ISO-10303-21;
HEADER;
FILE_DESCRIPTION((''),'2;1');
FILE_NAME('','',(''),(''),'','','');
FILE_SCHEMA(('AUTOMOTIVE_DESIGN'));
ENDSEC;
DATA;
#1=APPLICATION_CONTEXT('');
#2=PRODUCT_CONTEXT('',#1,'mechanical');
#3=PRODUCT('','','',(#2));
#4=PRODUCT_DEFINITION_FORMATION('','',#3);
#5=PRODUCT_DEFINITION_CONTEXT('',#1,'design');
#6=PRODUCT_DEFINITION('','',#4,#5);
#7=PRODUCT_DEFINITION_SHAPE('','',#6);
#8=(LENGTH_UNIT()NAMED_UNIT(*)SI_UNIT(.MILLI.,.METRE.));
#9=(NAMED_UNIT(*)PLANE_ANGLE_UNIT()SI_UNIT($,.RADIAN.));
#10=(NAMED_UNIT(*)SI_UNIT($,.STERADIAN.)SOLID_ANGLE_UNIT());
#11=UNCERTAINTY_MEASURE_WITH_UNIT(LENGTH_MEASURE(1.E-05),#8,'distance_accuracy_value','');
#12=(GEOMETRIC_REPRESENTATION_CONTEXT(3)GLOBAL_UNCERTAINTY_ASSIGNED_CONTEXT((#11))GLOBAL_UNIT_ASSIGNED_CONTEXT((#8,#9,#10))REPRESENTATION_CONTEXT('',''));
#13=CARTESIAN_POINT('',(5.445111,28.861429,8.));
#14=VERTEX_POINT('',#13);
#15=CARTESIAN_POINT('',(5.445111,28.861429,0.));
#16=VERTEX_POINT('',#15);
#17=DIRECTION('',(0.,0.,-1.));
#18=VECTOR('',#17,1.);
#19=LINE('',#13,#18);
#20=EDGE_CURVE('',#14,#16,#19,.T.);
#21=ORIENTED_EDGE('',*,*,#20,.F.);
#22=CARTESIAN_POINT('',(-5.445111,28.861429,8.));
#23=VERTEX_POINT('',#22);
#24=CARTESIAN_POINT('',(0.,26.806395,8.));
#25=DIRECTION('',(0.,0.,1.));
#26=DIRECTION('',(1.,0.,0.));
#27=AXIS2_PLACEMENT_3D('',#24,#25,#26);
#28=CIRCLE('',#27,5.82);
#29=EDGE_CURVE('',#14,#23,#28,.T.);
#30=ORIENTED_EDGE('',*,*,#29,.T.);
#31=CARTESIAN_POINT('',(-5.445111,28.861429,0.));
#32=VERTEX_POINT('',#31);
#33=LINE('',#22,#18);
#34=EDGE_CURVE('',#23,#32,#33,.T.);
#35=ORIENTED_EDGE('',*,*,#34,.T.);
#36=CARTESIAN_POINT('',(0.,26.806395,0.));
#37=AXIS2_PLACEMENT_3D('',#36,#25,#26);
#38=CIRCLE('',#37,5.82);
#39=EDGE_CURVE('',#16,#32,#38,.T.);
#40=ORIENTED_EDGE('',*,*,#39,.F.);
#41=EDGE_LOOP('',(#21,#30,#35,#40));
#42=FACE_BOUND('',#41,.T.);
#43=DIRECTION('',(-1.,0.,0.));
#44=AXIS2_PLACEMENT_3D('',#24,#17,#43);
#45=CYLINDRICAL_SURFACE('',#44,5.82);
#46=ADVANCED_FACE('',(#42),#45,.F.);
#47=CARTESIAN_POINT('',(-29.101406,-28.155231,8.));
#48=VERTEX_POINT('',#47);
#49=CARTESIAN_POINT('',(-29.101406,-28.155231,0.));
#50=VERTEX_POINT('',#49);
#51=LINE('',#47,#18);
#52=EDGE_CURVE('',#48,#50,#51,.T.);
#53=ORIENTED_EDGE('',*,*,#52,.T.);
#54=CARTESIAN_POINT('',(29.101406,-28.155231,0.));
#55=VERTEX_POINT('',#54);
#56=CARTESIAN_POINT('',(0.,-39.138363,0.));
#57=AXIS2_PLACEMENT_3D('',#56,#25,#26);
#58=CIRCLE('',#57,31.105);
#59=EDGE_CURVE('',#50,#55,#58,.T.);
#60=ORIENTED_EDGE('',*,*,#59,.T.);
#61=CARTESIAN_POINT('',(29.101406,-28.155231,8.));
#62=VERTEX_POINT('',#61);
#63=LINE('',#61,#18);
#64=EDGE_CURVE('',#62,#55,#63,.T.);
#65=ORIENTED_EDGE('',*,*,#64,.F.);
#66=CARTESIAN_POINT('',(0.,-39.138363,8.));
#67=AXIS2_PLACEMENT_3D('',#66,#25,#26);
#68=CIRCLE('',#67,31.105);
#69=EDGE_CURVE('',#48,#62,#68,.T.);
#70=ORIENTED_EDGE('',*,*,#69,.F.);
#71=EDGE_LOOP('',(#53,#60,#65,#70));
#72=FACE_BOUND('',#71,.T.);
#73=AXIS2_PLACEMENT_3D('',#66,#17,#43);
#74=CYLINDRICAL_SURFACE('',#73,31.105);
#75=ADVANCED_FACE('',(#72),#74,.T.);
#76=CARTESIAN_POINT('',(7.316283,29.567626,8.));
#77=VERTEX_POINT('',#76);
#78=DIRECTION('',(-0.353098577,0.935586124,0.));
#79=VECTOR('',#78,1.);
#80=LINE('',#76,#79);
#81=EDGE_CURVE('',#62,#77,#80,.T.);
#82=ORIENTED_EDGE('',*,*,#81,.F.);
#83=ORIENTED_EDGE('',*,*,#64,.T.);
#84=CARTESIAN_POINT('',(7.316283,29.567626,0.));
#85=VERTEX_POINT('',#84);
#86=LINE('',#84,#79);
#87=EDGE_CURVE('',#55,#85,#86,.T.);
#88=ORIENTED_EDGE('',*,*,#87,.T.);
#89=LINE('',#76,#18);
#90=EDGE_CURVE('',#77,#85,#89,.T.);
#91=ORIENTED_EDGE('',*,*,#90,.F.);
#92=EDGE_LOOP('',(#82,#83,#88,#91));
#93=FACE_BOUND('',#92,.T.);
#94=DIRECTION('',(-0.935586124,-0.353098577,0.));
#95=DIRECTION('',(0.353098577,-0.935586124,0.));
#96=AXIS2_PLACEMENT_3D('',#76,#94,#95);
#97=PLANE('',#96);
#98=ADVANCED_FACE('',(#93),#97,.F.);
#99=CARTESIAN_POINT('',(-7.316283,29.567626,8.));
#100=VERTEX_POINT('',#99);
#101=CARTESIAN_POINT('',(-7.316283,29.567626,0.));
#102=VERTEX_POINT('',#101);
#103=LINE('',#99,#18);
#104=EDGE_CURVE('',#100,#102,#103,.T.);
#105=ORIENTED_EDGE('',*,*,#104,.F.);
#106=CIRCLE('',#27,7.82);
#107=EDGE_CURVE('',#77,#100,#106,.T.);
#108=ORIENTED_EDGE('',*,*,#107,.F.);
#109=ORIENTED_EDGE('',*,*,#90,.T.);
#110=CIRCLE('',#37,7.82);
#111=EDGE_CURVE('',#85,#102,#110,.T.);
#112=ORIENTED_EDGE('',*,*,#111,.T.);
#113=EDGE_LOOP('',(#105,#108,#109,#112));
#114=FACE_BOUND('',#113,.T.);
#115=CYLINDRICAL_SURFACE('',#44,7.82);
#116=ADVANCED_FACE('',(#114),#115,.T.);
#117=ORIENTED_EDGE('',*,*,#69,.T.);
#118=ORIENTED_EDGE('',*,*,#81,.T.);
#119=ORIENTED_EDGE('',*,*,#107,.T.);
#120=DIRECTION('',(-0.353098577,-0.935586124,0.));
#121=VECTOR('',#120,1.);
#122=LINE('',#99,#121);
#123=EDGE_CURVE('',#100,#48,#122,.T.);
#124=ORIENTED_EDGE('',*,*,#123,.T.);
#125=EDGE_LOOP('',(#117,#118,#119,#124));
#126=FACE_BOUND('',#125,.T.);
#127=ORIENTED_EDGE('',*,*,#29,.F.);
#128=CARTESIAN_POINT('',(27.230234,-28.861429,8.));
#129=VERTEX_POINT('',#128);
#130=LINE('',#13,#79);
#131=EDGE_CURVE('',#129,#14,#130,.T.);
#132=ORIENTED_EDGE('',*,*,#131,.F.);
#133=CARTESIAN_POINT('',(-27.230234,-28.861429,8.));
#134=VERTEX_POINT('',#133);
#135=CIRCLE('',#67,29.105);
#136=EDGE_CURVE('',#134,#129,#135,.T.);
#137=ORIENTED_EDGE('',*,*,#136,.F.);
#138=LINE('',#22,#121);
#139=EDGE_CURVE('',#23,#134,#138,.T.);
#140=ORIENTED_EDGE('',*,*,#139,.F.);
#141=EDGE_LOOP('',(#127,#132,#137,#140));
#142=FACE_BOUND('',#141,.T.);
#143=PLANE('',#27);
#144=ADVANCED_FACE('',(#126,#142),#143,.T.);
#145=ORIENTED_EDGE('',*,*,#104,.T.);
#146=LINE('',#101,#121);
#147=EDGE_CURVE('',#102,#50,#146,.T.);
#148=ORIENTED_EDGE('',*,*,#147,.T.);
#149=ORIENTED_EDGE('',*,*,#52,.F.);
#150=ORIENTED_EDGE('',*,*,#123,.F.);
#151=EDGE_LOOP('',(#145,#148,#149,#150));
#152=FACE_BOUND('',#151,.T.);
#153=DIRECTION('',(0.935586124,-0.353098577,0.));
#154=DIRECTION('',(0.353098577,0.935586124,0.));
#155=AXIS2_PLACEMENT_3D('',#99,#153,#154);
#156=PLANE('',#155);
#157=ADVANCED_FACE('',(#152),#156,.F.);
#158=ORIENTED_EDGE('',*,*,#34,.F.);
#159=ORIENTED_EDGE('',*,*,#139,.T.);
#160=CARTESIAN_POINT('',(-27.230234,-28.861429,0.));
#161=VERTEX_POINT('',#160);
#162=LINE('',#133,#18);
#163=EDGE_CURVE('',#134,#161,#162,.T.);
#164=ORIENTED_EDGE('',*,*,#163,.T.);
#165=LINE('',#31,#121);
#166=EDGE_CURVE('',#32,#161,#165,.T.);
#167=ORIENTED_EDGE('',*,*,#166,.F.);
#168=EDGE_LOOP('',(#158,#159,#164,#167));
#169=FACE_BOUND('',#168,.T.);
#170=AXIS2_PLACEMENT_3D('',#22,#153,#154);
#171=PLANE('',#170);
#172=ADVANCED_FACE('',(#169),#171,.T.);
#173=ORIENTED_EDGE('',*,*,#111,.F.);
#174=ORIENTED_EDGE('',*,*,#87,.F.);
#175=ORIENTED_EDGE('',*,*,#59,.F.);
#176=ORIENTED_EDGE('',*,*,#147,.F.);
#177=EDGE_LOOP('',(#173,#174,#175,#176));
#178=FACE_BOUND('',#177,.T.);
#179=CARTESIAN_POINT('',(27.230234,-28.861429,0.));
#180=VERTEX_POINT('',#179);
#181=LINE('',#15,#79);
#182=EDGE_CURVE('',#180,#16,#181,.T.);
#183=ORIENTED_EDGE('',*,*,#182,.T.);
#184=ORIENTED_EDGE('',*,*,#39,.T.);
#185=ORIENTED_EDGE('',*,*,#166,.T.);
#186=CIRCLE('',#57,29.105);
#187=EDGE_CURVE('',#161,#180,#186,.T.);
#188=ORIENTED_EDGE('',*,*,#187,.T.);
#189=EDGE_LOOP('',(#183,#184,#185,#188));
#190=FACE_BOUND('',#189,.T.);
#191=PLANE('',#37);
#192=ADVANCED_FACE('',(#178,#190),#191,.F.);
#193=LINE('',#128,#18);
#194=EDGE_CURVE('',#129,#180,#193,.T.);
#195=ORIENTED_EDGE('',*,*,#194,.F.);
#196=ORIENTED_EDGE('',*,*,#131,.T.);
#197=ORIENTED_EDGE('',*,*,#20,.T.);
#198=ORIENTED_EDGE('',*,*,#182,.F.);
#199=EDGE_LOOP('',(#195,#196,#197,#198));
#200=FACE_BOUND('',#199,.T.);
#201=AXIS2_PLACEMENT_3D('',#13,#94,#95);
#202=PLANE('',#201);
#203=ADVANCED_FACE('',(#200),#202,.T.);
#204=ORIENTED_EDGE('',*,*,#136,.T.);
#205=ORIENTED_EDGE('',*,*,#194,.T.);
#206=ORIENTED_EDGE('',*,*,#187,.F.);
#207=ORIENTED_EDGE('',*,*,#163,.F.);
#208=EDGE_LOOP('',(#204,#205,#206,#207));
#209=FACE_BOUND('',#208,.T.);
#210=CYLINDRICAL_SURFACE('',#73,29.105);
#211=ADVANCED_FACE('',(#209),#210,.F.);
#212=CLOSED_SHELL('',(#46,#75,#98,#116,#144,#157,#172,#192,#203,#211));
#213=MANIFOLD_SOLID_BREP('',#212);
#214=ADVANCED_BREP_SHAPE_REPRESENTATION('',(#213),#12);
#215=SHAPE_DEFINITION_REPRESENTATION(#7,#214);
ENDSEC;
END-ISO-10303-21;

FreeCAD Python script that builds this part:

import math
import FreeCAD as App
import Part
import Sketcher

V = App.Vector

doc = App.newDocument("Part")
body = doc.addObject("PartDesign::Body", "Body")

sketch1 = doc.addObject("Sketcher::SketchObject", "Sketch")
body.addObject(sketch1)
sketch1.AttachmentSupport = (doc.XY_Plane, [""])
sketch1.MapMode = "FlatFace"
sketch1.addGeometry([
    Part.LineSegment(V(-7, 30, 0), V(-29, -28, 0)),
    Part.ArcOfCircle(Part.Circle(V(0, -39, 0), V(0, 0, 1), 31), math.radians(159), math.radians(381)),
    Part.LineSegment(V(29, -28, 0), V(7, 30, 0)),
    Part.ArcOfCircle(Part.Circle(V(0, 27, 0), V(0, 0, 1), 8), math.radians(21), math.radians(159)),
    Part.LineSegment(V(-27, -29, 0), V(-5, 29, 0)),
    Part.ArcOfCircle(Part.Circle(V(0, 27, 0), V(0, 0, 1), 6), math.radians(21), math.radians(159)),
    Part.LineSegment(V(5, 29, 0), V(27, -29, 0)),
    Part.ArcOfCircle(Part.Circle(V(0, -39, 0), V(0, 0, 1), 29), math.radians(159), math.radians(381)),
], False)
sketch1.addConstraint([
    Sketcher.Constraint("Tangent", 0, 2, 1, 1),
    Sketcher.Constraint("Tangent", 1, 2, 2, 1),
    Sketcher.Constraint("Tangent", 2, 2, 3, 1),
    Sketcher.Constraint("Tangent", 3, 2, 0, 1),
    Sketcher.Constraint("Tangent", 4, 2, 5, 2),
    Sketcher.Constraint("Tangent", 5, 1, 6, 1),
    Sketcher.Constraint("Tangent", 6, 2, 7, 2),
    Sketcher.Constraint("Tangent", 7, 1, 4, 1),
    Sketcher.Constraint("Coincident", 5, 3, 3, 3),
    Sketcher.Constraint("Coincident", 7, 3, 1, 3),
    Sketcher.Constraint("Symmetric", 0, 2, 1, 2, -2),
    Sketcher.Constraint("Parallel", 0, 4),
    Sketcher.Constraint("Radius", 3, 7.82),
    Sketcher.Constraint("Radius", 5, 5.82),
    Sketcher.Constraint("Radius", 1, 31.105),
    Sketcher.Constraint("Distance", 0, 61.697),
    Sketcher.Constraint("DistanceY", 0, 2, -1, 1, 28.155231),
])
pad1 = doc.addObject("PartDesign::Pad", "Pad")
body.addObject(pad1)
pad1.Profile = sketch1
pad1.Length = 8

doc.recompute()
